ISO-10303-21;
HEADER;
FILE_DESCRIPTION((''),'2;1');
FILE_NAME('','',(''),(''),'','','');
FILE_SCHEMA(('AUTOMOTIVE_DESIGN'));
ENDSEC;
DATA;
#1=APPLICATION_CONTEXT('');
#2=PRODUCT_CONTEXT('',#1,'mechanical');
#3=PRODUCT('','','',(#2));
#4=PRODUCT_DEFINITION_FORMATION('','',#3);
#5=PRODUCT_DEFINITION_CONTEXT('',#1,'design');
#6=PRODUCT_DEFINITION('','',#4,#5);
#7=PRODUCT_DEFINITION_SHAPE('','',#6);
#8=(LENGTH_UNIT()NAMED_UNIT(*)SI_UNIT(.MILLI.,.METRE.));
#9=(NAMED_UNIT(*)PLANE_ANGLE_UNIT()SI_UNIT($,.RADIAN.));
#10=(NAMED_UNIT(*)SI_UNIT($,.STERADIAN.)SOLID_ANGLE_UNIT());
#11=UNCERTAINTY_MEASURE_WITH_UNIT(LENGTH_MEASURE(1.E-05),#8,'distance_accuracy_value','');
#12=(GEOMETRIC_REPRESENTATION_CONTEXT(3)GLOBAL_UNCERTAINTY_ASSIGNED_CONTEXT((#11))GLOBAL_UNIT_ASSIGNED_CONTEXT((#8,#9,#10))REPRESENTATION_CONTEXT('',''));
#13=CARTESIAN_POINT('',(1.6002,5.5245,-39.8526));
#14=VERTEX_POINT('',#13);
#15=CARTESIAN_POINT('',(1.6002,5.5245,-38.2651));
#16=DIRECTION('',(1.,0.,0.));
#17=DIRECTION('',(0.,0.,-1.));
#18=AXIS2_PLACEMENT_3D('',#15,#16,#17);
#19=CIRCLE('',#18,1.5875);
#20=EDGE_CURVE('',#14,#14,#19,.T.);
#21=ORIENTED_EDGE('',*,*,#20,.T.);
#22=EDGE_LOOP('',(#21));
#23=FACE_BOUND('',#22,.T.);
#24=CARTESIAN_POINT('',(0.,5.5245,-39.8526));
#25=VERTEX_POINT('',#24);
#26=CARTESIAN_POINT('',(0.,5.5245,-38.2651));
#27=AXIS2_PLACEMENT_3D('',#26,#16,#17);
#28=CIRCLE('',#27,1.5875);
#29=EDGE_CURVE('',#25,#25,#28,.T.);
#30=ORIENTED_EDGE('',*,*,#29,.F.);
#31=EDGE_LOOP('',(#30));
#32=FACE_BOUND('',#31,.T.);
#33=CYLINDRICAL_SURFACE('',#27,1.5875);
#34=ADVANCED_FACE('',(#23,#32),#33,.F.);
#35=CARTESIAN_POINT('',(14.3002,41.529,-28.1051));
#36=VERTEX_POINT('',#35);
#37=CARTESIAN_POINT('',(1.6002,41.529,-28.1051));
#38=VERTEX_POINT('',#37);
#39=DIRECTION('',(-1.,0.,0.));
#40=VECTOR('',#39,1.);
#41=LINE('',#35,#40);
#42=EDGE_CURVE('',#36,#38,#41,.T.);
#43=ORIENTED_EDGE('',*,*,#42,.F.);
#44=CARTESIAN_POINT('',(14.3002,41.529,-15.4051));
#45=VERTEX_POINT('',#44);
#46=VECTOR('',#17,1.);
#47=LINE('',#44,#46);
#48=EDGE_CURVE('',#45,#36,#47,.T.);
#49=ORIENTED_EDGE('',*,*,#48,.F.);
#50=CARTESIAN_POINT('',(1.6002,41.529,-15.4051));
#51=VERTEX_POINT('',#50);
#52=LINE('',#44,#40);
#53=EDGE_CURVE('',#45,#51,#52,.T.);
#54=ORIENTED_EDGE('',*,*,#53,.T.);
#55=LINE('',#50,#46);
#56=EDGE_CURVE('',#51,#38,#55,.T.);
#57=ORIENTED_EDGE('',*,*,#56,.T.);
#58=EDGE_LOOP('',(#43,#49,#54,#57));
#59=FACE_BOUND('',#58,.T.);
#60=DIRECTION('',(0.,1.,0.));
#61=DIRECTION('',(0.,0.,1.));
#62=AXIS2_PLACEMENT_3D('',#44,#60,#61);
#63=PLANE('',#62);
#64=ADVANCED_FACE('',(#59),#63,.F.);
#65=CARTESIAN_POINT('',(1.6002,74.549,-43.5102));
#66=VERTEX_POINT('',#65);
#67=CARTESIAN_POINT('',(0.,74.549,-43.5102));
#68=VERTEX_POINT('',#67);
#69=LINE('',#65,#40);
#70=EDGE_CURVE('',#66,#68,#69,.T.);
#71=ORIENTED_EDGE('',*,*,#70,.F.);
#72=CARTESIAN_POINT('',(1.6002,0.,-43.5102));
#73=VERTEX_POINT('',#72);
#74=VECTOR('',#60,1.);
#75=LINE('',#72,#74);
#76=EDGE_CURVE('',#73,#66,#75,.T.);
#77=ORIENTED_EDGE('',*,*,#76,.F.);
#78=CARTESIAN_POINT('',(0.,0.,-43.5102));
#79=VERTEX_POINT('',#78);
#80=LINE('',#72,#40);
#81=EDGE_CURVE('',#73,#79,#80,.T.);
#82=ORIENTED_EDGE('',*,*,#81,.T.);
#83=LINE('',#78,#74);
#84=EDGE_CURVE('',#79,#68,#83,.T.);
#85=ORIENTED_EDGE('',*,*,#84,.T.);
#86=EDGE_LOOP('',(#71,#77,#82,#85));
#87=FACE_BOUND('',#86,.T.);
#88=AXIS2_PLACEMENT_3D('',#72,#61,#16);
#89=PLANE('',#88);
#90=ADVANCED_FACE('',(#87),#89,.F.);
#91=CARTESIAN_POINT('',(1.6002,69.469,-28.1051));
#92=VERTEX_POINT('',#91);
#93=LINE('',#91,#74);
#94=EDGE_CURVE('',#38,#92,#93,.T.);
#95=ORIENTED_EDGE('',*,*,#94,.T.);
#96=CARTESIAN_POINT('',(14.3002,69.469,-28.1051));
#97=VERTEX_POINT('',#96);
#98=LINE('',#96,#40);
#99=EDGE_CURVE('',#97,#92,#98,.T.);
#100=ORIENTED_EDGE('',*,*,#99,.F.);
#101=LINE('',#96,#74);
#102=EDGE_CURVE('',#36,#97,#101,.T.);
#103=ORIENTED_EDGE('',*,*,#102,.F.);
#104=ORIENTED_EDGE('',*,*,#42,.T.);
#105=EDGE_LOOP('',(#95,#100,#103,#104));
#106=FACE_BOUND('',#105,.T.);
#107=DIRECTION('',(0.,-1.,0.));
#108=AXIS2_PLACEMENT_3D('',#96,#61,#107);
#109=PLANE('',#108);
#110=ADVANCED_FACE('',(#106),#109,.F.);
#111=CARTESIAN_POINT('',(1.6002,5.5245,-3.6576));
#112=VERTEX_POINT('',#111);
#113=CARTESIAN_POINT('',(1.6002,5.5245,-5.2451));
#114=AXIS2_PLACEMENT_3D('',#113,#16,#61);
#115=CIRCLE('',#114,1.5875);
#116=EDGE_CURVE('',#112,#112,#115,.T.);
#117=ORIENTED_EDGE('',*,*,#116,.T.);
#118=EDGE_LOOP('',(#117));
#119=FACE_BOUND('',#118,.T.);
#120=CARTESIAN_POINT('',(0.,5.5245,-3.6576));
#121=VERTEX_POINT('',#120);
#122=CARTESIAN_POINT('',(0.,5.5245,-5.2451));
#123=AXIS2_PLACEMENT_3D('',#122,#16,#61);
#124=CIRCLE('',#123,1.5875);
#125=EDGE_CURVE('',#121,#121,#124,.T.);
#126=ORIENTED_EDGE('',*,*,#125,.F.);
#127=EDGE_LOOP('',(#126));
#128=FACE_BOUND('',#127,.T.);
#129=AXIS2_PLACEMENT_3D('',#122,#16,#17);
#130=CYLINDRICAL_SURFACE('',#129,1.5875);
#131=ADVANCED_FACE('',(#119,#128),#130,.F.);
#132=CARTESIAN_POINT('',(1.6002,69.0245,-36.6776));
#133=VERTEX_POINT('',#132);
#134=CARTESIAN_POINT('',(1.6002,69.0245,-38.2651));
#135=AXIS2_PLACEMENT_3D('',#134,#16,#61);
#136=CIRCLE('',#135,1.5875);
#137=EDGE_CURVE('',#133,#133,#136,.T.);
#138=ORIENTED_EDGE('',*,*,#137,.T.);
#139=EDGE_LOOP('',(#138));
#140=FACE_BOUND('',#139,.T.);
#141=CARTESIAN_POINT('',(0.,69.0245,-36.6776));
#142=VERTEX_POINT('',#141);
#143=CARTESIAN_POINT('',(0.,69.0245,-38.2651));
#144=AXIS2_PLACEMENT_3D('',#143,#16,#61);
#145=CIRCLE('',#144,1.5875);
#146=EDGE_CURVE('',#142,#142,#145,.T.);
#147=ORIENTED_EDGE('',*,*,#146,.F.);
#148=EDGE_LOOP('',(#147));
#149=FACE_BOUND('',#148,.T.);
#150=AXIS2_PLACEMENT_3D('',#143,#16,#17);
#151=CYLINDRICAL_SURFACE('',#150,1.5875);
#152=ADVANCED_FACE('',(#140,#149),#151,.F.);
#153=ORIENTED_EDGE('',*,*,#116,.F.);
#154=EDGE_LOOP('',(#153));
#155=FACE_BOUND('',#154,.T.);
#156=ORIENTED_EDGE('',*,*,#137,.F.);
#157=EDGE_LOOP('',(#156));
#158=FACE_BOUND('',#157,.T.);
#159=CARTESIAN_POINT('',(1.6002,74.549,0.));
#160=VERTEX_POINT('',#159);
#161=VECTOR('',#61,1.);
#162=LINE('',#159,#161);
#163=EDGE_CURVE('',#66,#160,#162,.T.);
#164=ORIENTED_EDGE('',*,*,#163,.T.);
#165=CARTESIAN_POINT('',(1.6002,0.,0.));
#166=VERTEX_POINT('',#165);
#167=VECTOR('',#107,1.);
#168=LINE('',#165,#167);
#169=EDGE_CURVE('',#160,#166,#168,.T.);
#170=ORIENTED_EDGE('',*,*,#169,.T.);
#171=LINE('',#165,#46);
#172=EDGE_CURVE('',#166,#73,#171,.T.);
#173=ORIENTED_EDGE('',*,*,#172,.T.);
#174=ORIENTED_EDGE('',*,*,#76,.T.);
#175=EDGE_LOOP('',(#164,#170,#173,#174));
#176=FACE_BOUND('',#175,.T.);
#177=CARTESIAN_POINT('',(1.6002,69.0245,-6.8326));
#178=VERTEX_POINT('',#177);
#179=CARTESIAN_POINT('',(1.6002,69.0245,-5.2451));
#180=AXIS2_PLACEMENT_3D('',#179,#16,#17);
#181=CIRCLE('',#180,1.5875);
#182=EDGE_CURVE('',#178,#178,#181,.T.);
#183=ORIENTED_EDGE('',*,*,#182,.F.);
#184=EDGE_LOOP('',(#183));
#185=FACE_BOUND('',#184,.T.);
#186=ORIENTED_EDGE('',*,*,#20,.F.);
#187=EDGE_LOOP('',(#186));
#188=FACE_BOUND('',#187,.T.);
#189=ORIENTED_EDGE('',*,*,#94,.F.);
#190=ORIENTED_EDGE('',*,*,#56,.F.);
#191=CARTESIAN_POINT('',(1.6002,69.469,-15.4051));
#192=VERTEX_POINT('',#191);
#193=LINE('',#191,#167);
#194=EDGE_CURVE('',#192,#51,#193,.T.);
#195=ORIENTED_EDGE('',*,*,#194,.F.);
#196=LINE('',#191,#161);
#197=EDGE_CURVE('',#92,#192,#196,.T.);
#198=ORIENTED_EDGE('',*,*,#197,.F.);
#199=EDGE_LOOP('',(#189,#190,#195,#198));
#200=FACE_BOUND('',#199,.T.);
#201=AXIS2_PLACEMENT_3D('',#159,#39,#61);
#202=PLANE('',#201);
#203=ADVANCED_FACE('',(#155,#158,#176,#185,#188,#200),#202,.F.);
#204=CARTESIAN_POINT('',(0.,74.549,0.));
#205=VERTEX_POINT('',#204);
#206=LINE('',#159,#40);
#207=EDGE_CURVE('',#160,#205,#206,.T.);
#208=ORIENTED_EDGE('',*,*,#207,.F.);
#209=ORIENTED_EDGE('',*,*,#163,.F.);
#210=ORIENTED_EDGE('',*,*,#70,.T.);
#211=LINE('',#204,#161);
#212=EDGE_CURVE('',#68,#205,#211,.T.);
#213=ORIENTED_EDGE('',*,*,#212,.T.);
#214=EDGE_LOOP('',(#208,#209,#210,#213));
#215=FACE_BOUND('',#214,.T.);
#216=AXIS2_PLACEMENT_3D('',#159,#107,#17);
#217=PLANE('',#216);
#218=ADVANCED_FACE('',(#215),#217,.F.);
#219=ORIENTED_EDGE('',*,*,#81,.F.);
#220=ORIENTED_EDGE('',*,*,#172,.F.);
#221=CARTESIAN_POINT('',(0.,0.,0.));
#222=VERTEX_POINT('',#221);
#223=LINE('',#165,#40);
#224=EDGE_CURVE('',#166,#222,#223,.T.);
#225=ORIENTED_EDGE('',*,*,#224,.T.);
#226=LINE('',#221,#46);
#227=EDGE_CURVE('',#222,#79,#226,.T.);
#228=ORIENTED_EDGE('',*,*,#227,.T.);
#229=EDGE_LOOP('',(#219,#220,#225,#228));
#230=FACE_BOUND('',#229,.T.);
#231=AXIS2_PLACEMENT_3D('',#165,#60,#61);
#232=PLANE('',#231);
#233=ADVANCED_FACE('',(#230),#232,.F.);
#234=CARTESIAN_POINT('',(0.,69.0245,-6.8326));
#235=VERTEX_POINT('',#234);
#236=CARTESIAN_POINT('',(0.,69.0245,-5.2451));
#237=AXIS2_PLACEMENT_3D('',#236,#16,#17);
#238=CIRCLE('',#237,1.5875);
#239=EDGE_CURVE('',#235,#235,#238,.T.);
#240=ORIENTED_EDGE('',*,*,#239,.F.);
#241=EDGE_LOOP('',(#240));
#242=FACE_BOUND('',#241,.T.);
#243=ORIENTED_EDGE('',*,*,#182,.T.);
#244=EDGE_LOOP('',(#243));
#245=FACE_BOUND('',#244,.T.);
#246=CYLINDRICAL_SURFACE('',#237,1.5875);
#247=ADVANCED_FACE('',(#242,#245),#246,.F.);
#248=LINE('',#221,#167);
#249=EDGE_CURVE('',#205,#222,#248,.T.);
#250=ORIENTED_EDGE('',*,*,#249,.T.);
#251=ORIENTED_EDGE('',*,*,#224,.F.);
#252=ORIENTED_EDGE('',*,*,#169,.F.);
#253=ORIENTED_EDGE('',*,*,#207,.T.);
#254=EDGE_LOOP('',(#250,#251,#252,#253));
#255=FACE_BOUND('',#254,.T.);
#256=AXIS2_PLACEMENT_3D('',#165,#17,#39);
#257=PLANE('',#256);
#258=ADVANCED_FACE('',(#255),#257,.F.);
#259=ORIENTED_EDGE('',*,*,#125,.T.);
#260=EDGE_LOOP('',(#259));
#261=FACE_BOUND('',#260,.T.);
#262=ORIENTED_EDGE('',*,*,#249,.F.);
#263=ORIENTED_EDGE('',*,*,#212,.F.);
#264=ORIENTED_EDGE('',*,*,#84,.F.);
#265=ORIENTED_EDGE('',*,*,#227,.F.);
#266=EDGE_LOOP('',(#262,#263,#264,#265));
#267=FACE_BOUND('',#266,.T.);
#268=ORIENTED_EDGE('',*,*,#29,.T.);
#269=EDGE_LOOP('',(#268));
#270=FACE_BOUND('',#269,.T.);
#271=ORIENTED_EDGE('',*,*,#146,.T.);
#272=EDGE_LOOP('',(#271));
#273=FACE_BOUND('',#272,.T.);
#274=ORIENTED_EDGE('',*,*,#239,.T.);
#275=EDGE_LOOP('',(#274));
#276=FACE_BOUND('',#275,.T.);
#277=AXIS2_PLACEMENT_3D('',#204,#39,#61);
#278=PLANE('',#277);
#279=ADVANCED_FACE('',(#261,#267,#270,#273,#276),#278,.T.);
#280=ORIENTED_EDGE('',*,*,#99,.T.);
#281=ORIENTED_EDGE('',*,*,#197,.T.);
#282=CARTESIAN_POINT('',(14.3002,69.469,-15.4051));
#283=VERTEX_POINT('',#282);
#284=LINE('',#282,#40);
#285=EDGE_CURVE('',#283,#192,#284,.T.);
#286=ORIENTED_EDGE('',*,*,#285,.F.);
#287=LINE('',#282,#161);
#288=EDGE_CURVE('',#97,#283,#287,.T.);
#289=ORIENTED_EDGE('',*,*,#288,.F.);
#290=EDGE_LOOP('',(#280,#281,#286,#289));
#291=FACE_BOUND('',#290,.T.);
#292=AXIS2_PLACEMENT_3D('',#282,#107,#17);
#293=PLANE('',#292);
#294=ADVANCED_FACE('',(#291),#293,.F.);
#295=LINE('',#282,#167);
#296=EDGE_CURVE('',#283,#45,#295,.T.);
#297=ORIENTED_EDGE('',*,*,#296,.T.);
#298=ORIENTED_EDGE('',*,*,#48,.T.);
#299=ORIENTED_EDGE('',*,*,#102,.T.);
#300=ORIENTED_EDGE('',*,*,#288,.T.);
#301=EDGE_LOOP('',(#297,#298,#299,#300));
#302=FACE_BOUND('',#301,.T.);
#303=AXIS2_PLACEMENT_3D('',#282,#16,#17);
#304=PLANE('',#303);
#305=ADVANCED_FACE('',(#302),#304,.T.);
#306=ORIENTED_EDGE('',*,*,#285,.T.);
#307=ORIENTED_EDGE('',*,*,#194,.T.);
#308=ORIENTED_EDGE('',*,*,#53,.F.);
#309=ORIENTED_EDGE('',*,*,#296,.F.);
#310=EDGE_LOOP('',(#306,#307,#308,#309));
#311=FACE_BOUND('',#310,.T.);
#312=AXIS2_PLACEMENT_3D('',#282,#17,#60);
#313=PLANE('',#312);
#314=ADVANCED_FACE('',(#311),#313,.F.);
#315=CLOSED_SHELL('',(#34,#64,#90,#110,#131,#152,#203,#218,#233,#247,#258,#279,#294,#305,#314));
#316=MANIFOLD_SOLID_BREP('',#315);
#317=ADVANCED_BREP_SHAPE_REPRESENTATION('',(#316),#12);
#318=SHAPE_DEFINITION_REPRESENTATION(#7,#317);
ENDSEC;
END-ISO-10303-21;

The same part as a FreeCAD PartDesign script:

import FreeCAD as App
import Part
import Sketcher
from FreeCAD import Vector
Q = App.Units.Quantity

doc = App.newDocument("Part")
body = doc.addObject("PartDesign::Body", "Body")

sketch1 = body.newObject("Sketcher::SketchObject", "Sketch")
sketch1.AttachmentSupport = (doc.getObject("YZ_Plane"), [""])
sketch1.MapMode = "FlatFace"
sketch1.addGeometry([
    Part.LineSegment(Vector(75, 0, 0), Vector(0, 0, 0)),
    Part.LineSegment(Vector(0, 0, 0), Vector(0, -44, 0)),
    Part.LineSegment(Vector(0, -44, 0), Vector(75, -44, 0)),
    Part.LineSegment(Vector(75, -44, 0), Vector(75, 0, 0)),
], False)
sketch1.addConstraint([
    Sketcher.Constraint("Coincident", 0, 2, 1, 1),
    Sketcher.Constraint("Coincident", 1, 2, 2, 1),
    Sketcher.Constraint("Coincident", 2, 2, 3, 1),
    Sketcher.Constraint("Coincident", 3, 2, 0, 1),
    Sketcher.Constraint("Horizontal", 0),
    Sketcher.Constraint("Vertical", 1),
    Sketcher.Constraint("Horizontal", 2),
    Sketcher.Constraint("Vertical", 3),
    Sketcher.Constraint("Coincident", 0, 2, -1, 1),
    Sketcher.Constraint("DistanceX", 0, 2, 0, 1, Q("2.935 in")),
    Sketcher.Constraint("DistanceY", 1, 2, 1, 1, Q("1.713 in")),
])
pad1 = body.newObject("PartDesign::Pad", "Pad")
pad1.Profile = sketch1
pad1.Length = Q("0.063 in")

sketch2 = body.newObject("Sketcher::SketchObject", "Sketch001")
sketch2.AttachmentSupport = (doc.getObject("YZ_Plane"), [""])
sketch2.MapMode = "FlatFace"
sketch2.AttachmentOffset = App.Placement(Vector(0, 0, 0.063 * 25.4), App.Rotation())
sketch2.addGeometry([
    Part.Circle(Vector(69, -5.2, 0), Vector(0, 0, 1), 1.6),
    Part.Circle(Vector(69, -38.3, 0), Vector(0, 0, 1), 1.6),
    Part.Circle(Vector(5.5, -38.3, 0), Vector(0, 0, 1), 1.6),
    Part.Circle(Vector(5.5, -5.2, 0), Vector(0, 0, 1), 1.6),
], False)
sketch2.addConstraint([
    Sketcher.Constraint("Equal", 0, 1),
    Sketcher.Constraint("Equal", 1, 2),
    Sketcher.Constraint("Equal", 2, 3),
    Sketcher.Constraint("Horizontal", 1, 3, 2, 3),
    Sketcher.Constraint("Horizontal", 0, 3, 3, 3),
    Sketcher.Constraint("Vertical", 0, 3, 1, 3),
    Sketcher.Constraint("Vertical", 2, 3, 3, 3),
    Sketcher.Constraint("Diameter", 0, Q("0.125 in")),
    Sketcher.Constraint("DistanceY", 1, 3, 0, 3, Q("1.3 in")),
    Sketcher.Constraint("DistanceX", 2, 3, 1, 3, Q("2.5 in")),
    Sketcher.Constraint("DistanceX", -1, 1, 0, 3, Q("2.7175 in")),
    Sketcher.Constraint("DistanceY", 0, 3, -1, 1, Q("0.2065 in")),
])
pocket1 = body.newObject("PartDesign::Pocket", "Pocket")
pocket1.Profile = sketch2
pocket1.Type = "ThroughAll"

sketch3 = body.newObject("Sketcher::SketchObject", "Sketch002")
sketch3.AttachmentSupport = (doc.getObject("YZ_Plane"), [""])
sketch3.MapMode = "FlatFace"
sketch3.AttachmentOffset = App.Placement(Vector(0, 0, 0.063 * 25.4), App.Rotation())
sketch3.addGeometry([
    Part.LineSegment(Vector(69, -15, 0), Vector(42, -15, 0)),
    Part.LineSegment(Vector(42, -15, 0), Vector(42, -28, 0)),
    Part.LineSegment(Vector(42, -28, 0), Vector(69, -28, 0)),
    Part.LineSegment(Vector(69, -28, 0), Vector(69, -15, 0)),
], False)
sketch3.addConstraint([
    Sketcher.Constraint("Coincident", 0, 2, 1, 1),
    Sketcher.Constraint("Coincident", 1, 2, 2, 1),
    Sketcher.Constraint("Coincident", 2, 2, 3, 1),
    Sketcher.Constraint("Coincident", 3, 2, 0, 1),
    Sketcher.Constraint("Horizontal", 0),
    Sketcher.Constraint("Vertical", 1),
    Sketcher.Constraint("Horizontal", 2),
    Sketcher.Constraint("Vertical", 3),
    Sketcher.Constraint("DistanceX", 0, 2, 0, 1, Q("1.1 in")),
    Sketcher.Constraint("DistanceY", 1, 2, 1, 1, Q("0.5 in")),
    Sketcher.Constraint("DistanceX", -1, 1, 0, 2, Q("1.635 in")),
    Sketcher.Constraint("DistanceY", 0, 2, -1, 1, Q("0.6065 in")),
])
pad2 = body.newObject("PartDesign::Pad", "Pad001")
pad2.Profile = sketch3
pad2.Length = Q("0.5 in")

doc.recompute()
